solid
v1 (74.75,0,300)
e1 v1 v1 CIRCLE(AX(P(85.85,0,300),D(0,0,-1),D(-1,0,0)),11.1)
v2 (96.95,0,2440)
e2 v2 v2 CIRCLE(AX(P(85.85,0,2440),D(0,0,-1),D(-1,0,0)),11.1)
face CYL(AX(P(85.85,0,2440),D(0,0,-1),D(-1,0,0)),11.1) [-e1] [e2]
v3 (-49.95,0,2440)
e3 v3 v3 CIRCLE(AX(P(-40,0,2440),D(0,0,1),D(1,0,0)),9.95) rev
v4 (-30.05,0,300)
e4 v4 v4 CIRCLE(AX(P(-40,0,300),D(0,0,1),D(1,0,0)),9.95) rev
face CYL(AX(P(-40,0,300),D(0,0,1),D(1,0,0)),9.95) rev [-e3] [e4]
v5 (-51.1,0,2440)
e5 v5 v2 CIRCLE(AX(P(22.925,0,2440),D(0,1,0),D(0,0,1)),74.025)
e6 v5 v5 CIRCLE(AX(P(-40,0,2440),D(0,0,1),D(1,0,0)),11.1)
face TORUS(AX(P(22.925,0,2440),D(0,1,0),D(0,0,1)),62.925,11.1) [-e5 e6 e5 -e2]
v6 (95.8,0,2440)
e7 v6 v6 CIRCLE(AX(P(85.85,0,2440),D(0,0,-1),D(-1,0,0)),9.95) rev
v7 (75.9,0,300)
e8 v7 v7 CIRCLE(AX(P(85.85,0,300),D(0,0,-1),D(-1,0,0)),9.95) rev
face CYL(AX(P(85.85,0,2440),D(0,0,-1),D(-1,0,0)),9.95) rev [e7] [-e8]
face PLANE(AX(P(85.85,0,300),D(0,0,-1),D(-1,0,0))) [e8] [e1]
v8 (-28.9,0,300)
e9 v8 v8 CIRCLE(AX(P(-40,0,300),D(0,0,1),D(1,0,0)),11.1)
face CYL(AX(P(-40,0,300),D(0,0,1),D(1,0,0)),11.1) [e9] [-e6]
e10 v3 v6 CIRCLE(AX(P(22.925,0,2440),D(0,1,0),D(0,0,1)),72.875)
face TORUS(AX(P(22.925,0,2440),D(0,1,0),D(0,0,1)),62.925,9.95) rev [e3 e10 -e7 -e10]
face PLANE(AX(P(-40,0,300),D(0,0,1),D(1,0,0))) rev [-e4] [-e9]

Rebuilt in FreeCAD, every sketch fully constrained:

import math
import FreeCAD as App
import Part
import Sketcher
Q = App.Units.Quantity

doc = App.newDocument("Part")
body = doc.addObject("PartDesign::Body", "Body")

# Sketch on XY plane
sketch1 = body.newObject("Sketcher::SketchObject", "Sketch")
sketch1.AttachmentSupport = (doc.getObject("XY_Plane"), [""])
sketch1.MapMode = "FlatFace"
sketch1.AttachmentOffset = App.Placement(App.Vector(0, 0, 300), App.Rotation())
sketch1.addGeometry(Part.Circle(App.Vector(86, 0, 0), App.Vector(0, 0, 1), 11), False)
sketch1.addGeometry(Part.Circle(App.Vector(86, 0, 0), App.Vector(0, 0, 1), 10), False)
sketch1.addConstraint(Sketcher.Constraint("Coincident", 1, 3, 0, 3))
sketch1.addConstraint(Sketcher.Constraint("PointOnObject", 0, 3, -1))
sketch1.addConstraint(Sketcher.Constraint("Diameter", 0, Q("22.2 mm")))
sketch1.addConstraint(Sketcher.Constraint("Diameter", 1, Q("19.9 mm")))
sketch1.addConstraint(Sketcher.Constraint("DistanceX", -1, 1, 0, 3, Q("85.85 mm")))

# Sketch on XZ plane
sketch2 = body.newObject("Sketcher::SketchObject", "Sketch001")
sketch2.AttachmentSupport = (doc.getObject("XZ_Plane"), [""])
sketch2.MapMode = "FlatFace"
sketch2.addGeometry(Part.LineSegment(App.Vector(86, 300, 0), App.Vector(86, 2440, 0)), False)
sketch2.addGeometry(Part.ArcOfCircle(Part.Circle(App.Vector(23, 2440, 0), App.Vector(0, 0, 1), 63), math.radians(0), math.radians(180)), False)
sketch2.addGeometry(Part.LineSegment(App.Vector(-40, 2440, 0), App.Vector(-40, 300, 0)), False)
sketch2.addConstraint(Sketcher.Constraint("Tangent", 0, 2, 1, 1))
sketch2.addConstraint(Sketcher.Constraint("Tangent", 1, 2, 2, 1))
sketch2.addConstraint(Sketcher.Constraint("Vertical", 0))
sketch2.addConstraint(Sketcher.Constraint("Vertical", 2))
sketch2.addConstraint(Sketcher.Constraint("Horizontal", 0, 1, 2, 2))
sketch2.addConstraint(Sketcher.Constraint("DistanceY", 0, 1, 0, 2, Q("2140 mm")))
sketch2.addConstraint(Sketcher.Constraint("DistanceY", -1, 1, 1, 3, Q("2440 mm")))
sketch2.addConstraint(Sketcher.Constraint("DistanceX", 1, 2, -1, 1, Q("40 mm")))
sketch2.addConstraint(Sketcher.Constraint("Radius", 1, Q("62.925 mm")))
doc.recompute()

additivepipe = body.newObject("PartDesign::AdditivePipe", "AdditivePipe")
additivepipe.Profile = sketch1
additivepipe.Spine = (sketch2, ["Edge1", "Edge2", "Edge3"])

doc.recompute()
